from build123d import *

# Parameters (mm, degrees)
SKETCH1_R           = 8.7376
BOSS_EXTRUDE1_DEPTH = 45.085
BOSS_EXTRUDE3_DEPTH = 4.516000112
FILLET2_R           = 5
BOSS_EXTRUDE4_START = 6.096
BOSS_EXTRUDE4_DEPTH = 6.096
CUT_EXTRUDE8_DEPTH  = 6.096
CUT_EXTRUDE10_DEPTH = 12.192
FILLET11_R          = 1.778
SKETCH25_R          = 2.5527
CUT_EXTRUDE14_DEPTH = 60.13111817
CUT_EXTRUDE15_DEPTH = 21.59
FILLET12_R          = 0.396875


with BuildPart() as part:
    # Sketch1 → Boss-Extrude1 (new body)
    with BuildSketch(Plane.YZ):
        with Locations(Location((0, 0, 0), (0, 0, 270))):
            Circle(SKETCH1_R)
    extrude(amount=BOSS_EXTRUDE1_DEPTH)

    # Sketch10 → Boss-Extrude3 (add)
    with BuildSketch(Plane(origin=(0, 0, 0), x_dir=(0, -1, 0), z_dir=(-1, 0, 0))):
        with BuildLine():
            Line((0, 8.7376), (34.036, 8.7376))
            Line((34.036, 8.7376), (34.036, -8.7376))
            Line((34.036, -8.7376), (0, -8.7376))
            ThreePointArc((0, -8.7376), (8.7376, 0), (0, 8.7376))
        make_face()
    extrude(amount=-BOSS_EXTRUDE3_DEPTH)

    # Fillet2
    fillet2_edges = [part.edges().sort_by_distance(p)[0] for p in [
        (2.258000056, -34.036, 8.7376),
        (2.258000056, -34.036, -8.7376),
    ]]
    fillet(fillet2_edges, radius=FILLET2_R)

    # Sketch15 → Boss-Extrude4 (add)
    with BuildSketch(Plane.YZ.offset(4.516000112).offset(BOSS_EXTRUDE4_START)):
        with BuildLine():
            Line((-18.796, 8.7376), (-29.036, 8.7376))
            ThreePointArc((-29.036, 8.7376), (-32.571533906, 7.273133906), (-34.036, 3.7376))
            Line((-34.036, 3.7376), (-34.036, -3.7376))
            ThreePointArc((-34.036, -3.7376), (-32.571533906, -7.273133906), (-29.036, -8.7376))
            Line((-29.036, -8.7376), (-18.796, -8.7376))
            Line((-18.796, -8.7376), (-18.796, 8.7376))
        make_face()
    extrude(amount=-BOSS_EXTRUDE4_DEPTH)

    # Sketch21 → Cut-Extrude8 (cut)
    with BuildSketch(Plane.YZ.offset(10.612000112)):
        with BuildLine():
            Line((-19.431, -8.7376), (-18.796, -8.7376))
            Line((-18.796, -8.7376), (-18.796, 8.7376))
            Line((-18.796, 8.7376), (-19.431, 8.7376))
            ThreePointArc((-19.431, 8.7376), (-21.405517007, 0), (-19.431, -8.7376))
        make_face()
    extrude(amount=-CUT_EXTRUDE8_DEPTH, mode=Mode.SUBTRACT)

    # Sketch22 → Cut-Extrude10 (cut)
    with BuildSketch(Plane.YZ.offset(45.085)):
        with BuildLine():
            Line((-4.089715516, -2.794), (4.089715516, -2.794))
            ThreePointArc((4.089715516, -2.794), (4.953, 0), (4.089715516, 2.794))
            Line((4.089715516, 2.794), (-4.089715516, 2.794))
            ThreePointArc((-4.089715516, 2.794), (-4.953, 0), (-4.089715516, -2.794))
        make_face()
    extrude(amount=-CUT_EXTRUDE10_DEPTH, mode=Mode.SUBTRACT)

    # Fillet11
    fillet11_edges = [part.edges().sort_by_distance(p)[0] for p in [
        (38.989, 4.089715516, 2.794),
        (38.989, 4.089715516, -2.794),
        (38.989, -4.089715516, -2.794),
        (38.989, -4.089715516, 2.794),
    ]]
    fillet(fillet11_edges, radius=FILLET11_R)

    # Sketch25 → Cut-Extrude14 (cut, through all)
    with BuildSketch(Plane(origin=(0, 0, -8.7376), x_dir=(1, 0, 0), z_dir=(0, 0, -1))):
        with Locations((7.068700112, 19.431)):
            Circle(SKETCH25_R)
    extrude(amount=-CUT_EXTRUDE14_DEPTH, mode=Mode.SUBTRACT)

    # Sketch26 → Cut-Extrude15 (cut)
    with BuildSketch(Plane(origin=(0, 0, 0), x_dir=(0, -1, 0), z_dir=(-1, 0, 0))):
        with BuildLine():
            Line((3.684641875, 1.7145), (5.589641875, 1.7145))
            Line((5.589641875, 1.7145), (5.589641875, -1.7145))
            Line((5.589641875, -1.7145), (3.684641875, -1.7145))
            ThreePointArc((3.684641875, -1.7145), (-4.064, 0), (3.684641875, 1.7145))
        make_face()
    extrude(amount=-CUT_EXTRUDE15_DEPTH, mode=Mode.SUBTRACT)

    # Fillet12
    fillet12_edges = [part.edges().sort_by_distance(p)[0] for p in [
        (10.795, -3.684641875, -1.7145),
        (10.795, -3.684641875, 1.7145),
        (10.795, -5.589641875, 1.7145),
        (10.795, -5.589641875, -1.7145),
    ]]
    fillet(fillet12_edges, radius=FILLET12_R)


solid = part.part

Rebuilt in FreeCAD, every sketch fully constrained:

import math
import FreeCAD as App
import Part
import Sketcher
Q = App.Units.Quantity


def edges_at(feature, points):
    """Names of the edges that pass closest to the given points."""
    edges = feature.Shape.Edges
    near = lambda p: min(range(len(edges)), key=lambda i: edges[i].distToShape(Part.Vertex(*p))[0])
    return sorted({f"Edge{near(p) + 1}" for p in points})

doc = App.newDocument("Part")
body = doc.addObject("PartDesign::Body", "Body")

# Sketch on YZ plane
sketch1 = body.newObject("Sketcher::SketchObject", "Sketch")
sketch1.AttachmentSupport = (doc.getObject("YZ_Plane"), [""])
sketch1.MapMode = "FlatFace"
sketch1.addGeometry(Part.Circle(App.Vector(0, 0, 0), App.Vector(0, 0, 1), 9), False)
sketch1.addConstraint(Sketcher.Constraint("Coincident", 0, 3, -1, 1))
sketch1.addConstraint(Sketcher.Constraint("Diameter", 0, Q("0.688 in")))
pad1 = body.newObject("PartDesign::Pad", "Pad")
pad1.Profile = sketch1
pad1.Length = Q("1.775 in")

# Sketch on YZ plane
sketch2 = body.newObject("Sketcher::SketchObject", "Sketch001")
sketch2.AttachmentSupport = (doc.getObject("YZ_Plane"), [""])
sketch2.MapMode = "FlatFace"
sketch2.addGeometry(Part.LineSegment(App.Vector(-34, 9, 0), App.Vector(0, 9, 0)), False)
sketch2.addGeometry(Part.ArcOfCircle(Part.Circle(App.Vector(0, 0, 0), App.Vector(0, 0, 1), 9), math.radians(90), math.radians(270)), False)
sketch2.addGeometry(Part.LineSegment(App.Vector(0, -9, 0), App.Vector(-34, -9, 0)), False)
sketch2.addGeometry(Part.LineSegment(App.Vector(-34, -9, 0), App.Vector(-34, 9, 0)), False)
sketch2.addConstraint(Sketcher.Constraint("Tangent", 0, 2, 1, 1))
sketch2.addConstraint(Sketcher.Constraint("Tangent", 1, 2, 2, 1))
sketch2.addConstraint(Sketcher.Constraint("Coincident", 2, 2, 3, 1))
sketch2.addConstraint(Sketcher.Constraint("Coincident", 3, 2, 0, 1))
sketch2.addConstraint(Sketcher.Constraint("Horizontal", 0))
sketch2.addConstraint(Sketcher.Constraint("Horizontal", 2))
sketch2.addConstraint(Sketcher.Constraint("Vertical", 3))
sketch2.addConstraint(Sketcher.Constraint("Coincident", 1, 3, -1, 1))
sketch2.addConstraint(Sketcher.Constraint("Radius", 1, Q("0.344 in")))
sketch2.addConstraint(Sketcher.Constraint("DistanceX", 0, 1, 0, 2, Q("1.34 in")))
pad2 = body.newObject("PartDesign::Pad", "Pad001")
pad2.Profile = sketch2
pad2.Length = 4.516
doc.recompute()

fillet = body.newObject("PartDesign::Fillet", "Fillet")
fillet.Base = (pad2, edges_at(pad2, [(2.258, -34.036, 8.738), (2.258, -34.036, -8.738)]))
fillet.Radius = 5

# Sketch on YZ plane
sketch3 = body.newObject("Sketcher::SketchObject", "Sketch002")
sketch3.AttachmentSupport = (doc.getObject("YZ_Plane"), [""])
sketch3.MapMode = "FlatFace"
sketch3.AttachmentOffset = App.Placement(App.Vector(0, 0, 10.612), App.Rotation())
sketch3.addGeometry(Part.LineSegment(App.Vector(-19, 9, 0), App.Vector(-29, 9, 0)), False)
sketch3.addGeometry(Part.ArcOfCircle(Part.Circle(App.Vector(-29, 4, 0), App.Vector(0, 0, 1), 5), math.radians(90), math.radians(180)), False)
sketch3.addGeometry(Part.LineSegment(App.Vector(-34, 4, 0), App.Vector(-34, -4, 0)), False)
sketch3.addGeometry(Part.ArcOfCircle(Part.Circle(App.Vector(-29, -4, 0), App.Vector(0, 0, 1), 5), math.radians(180), math.radians(270)), False)
sketch3.addGeometry(Part.LineSegment(App.Vector(-29, -9, 0), App.Vector(-19, -9, 0)), False)
sketch3.addGeometry(Part.LineSegment(App.Vector(-19, -9, 0), App.Vector(-19, 9, 0)), False)
sketch3.addConstraint(Sketcher.Constraint("Tangent", 0, 2, 1, 1))
sketch3.addConstraint(Sketcher.Constraint("Tangent", 1, 2, 2, 1))
sketch3.addConstraint(Sketcher.Constraint("Tangent", 2, 2, 3, 1))
sketch3.addConstraint(Sketcher.Constraint("Tangent", 3, 2, 4, 1))
sketch3.addConstraint(Sketcher.Constraint("Coincident", 4, 2, 5, 1))
sketch3.addConstraint(Sketcher.Constraint("Coincident", 5, 2, 0, 1))
sketch3.addConstraint(Sketcher.Constraint("Horizontal", 0))
sketch3.addConstraint(Sketcher.Constraint("Vertical", 2))
sketch3.addConstraint(Sketcher.Constraint("Horizontal", 4))
sketch3.addConstraint(Sketcher.Constraint("Vertical", 5))
sketch3.addConstraint(Sketcher.Constraint("Equal", 1, 3))
sketch3.addConstraint(Sketcher.Constraint("DistanceX", 2, 2, 4, 2, Q("0.6 in")))
sketch3.addConstraint(Sketcher.Constraint("DistanceY", 5, 1, 5, 2, Q("0.688 in")))
sketch3.addConstraint(Sketcher.Constraint("DistanceX", 1, 2, -1, 1, Q("1.34 in")))
sketch3.addConstraint(Sketcher.Constraint("Radius", 1, 5.0))
sketch3.addConstraint(Sketcher.Constraint("DistanceY", -1, 1, 0, 2, Q("0.344 in")))
pad3 = body.newObject("PartDesign::Pad", "Pad002")
pad3.Profile = sketch3
pad3.Length = Q("0.24 in")
pad3.Reversed = True

# Sketch on YZ plane
sketch4 = body.newObject("Sketcher::SketchObject", "Sketch003")
sketch4.AttachmentSupport = (doc.getObject("YZ_Plane"), [""])
sketch4.MapMode = "FlatFace"
sketch4.AttachmentOffset = App.Placement(App.Vector(0, 0, 10.612), App.Rotation())
sketch4.addGeometry(Part.LineSegment(App.Vector(-19.4, -8.7, 0), App.Vector(-18.8, -8.7, 0)), False)
sketch4.addGeometry(Part.LineSegment(App.Vector(-18.8, -8.7, 0), App.Vector(-18.8, 8.7, 0)), False)
sketch4.addGeometry(Part.LineSegment(App.Vector(-18.8, 8.7, 0), App.Vector(-19.4, 8.7, 0)), False)
sketch4.addGeometry(Part.ArcOfCircle(Part.Circle(App.Vector(-1.1, 0, 0), App.Vector(0, 0, 1), 20.3), math.radians(155), math.radians(205)), False)
sketch4.addConstraint(Sketcher.Constraint("Coincident", 0, 2, 1, 1))
sketch4.addConstraint(Sketcher.Constraint("Coincident", 1, 2, 2, 1))
sketch4.addConstraint(Sketcher.Constraint("Coincident", 2, 2, 3, 1))
sketch4.addConstraint(Sketcher.Constraint("Coincident", 3, 2, 0, 1))
sketch4.addConstraint(Sketcher.Constraint("Horizontal", 0))
sketch4.addConstraint(Sketcher.Constraint("Vertical", 1))
sketch4.addConstraint(Sketcher.Constraint("Horizontal", 2))
sketch4.addConstraint(Sketcher.Constraint("Symmetric", 2, 2, 3, 2, -1))
sketch4.addConstraint(Sketcher.Constraint("Radius", 3, Q("0.8 in")))
sketch4.addConstraint(Sketcher.Constraint("DistanceX", 0, 1, 0, 2, Q("0.025 in")))
sketch4.addConstraint(Sketcher.Constraint("DistanceY", 1, 1, 1, 2, Q("0.688 in")))
sketch4.addConstraint(Sketcher.Constraint("DistanceX", 0, 2, -1, 1, Q("0.74 in")))
pocket1 = body.newObject("PartDesign::Pocket", "Pocket")
pocket1.Profile = sketch4
pocket1.Length = Q("0.24 in")

# Sketch on YZ plane
sketch5 = body.newObject("Sketcher::SketchObject", "Sketch004")
sketch5.AttachmentSupport = (doc.getObject("YZ_Plane"), [""])
sketch5.MapMode = "FlatFace"
sketch5.AttachmentOffset = App.Placement(App.Vector(0, 0, 1.775 * 25.4), App.Rotation())
sketch5.addGeometry(Part.LineSegment(App.Vector(-4.1, -2.8, 0), App.Vector(4.1, -2.8, 0)), False)
sketch5.addGeometry(Part.ArcOfCircle(Part.Circle(App.Vector(0, 0, 0), App.Vector(0, 0, 1), 5), math.radians(-34), math.radians(34)), False)
sketch5.addGeometry(Part.LineSegment(App.Vector(4.1, 2.8, 0), App.Vector(-4.1, 2.8, 0)), False)
sketch5.addGeometry(Part.ArcOfCircle(Part.Circle(App.Vector(0, 0, 0), App.Vector(0, 0, 1), 5), math.radians(146), math.radians(214)), False)
sketch5.addConstraint(Sketcher.Constraint("Coincident", 0, 2, 1, 1))
sketch5.addConstraint(Sketcher.Constraint("Coincident", 1, 2, 2, 1))
sketch5.addConstraint(Sketcher.Constraint("Coincident", 2, 2, 3, 1))
sketch5.addConstraint(Sketcher.Constraint("Coincident", 3, 2, 0, 1))
sketch5.addConstraint(Sketcher.Constraint("Horizontal", 0))
sketch5.addConstraint(Sketcher.Constraint("Horizontal", 2))
sketch5.addConstraint(Sketcher.Constraint("Coincident", 1, 3, -1, 1))
sketch5.addConstraint(Sketcher.Constraint("Coincident", 3, 3, -1, 1))
sketch5.addConstraint(Sketcher.Constraint("Equal", 1, 3))
sketch5.addConstraint(Sketcher.Constraint("Vertical", 0, 2, 1, 2))
sketch5.addConstraint(Sketcher.Constraint("Radius", 1, Q("0.195 in")))
sketch5.addConstraint(Sketcher.Constraint("DistanceY", 0, 2, -1, 1, Q("0.11 in")))
pocket2 = body.newObject("PartDesign::Pocket", "Pocket001")
pocket2.Profile = sketch5
pocket2.Length = Q("0.48 in")
doc.recompute()

fillet2 = body.newObject("PartDesign::Fillet", "Fillet001")
fillet2.Base = (pocket2, edges_at(pocket2, [
    (38.989, 4.09, 2.794),
    (38.989, 4.09, -2.794),
    (38.989, -4.09, -2.794),
    (38.989, -4.09, 2.794),
]))
fillet2.Radius = Q("0.07 in")

# Sketch on XY plane
sketch6 = body.newObject("Sketcher::SketchObject", "Sketch005")
sketch6.AttachmentSupport = (doc.getObject("XY_Plane"), [""])
sketch6.MapMode = "FlatFace"
sketch6.AttachmentOffset = App.Placement(App.Vector(0, 0, -0.344 * 25.4), App.Rotation())
sketch6.addGeometry(Part.Circle(App.Vector(7.1, -19.4, 0), App.Vector(0, 0, 1), 2.6), False)
sketch6.addConstraint(Sketcher.Constraint("Diameter", 0, Q("0.201 in")))
sketch6.addConstraint(Sketcher.Constraint("DistanceY", 0, 3, -1, 1, Q("0.765 in")))
sketch6.addConstraint(Sketcher.Constraint("DistanceX", -1, 1, 0, 3, 7.0687))
pocket3 = body.newObject("PartDesign::Pocket", "Pocket002")
pocket3.Profile = sketch6
pocket3.Type = "ThroughAll"
pocket3.Reversed = True

# Sketch on YZ plane
sketch7 = body.newObject("Sketcher::SketchObject", "Sketch006")
sketch7.AttachmentSupport = (doc.getObject("YZ_Plane"), [""])
sketch7.MapMode = "FlatFace"
sketch7.addGeometry(Part.LineSegment(App.Vector(-5.6, 1.7, 0), App.Vector(-3.7, 1.7, 0)), False)
sketch7.addGeometry(Part.ArcOfCircle(Part.Circle(App.Vector(0, 0, 0), App.Vector(0, 0, 1), 4.1), math.radians(-155), math.radians(155)), False)
sketch7.addGeometry(Part.LineSegment(App.Vector(-3.7, -1.7, 0), App.Vector(-5.6, -1.7, 0)), False)
sketch7.addGeometry(Part.LineSegment(App.Vector(-5.6, -1.7, 0), App.Vector(-5.6, 1.7, 0)), False)
sketch7.addConstraint(Sketcher.Constraint("Coincident", 0, 2, 1, 2))
sketch7.addConstraint(Sketcher.Constraint("Coincident", 1, 1, 2, 1))
sketch7.addConstraint(Sketcher.Constraint("Coincident", 2, 2, 3, 1))
sketch7.addConstraint(Sketcher.Constraint("Coincident", 3, 2, 0, 1))
sketch7.addConstraint(Sketcher.Constraint("Horizontal", 0))
sketch7.addConstraint(Sketcher.Constraint("Horizontal", 2))
sketch7.addConstraint(Sketcher.Constraint("Vertical", 3))
sketch7.addConstraint(Sketcher.Constraint("Coincident", 1, 3, -1, 1))
sketch7.addConstraint(Sketcher.Constraint("Vertical", 0, 2, 1, 1))
sketch7.addConstraint(Sketcher.Constraint("Radius", 1, Q("0.16 in")))
sketch7.addConstraint(Sketcher.Constraint("DistanceX", 0, 1, 0, 2, Q("0.075 in")))
sketch7.addConstraint(Sketcher.Constraint("DistanceY", 3, 1, 3, 2, Q("0.135 in")))
pocket4 = body.newObject("PartDesign::Pocket", "Pocket003")
pocket4.Profile = sketch7
pocket4.Length = Q("0.85 in")
pocket4.Reversed = True
doc.recompute()

fillet3 = body.newObject("PartDesign::Fillet", "Fillet002")
fillet3.Base = (pocket4, edges_at(pocket4, [
    (10.795, -3.685, -1.714),
    (10.795, -3.685, 1.714),
    (10.795, -5.59, 1.714),
    (10.795, -5.59, -1.714),
]))
fillet3.Radius = Q("0.015625 in")

doc.recompute()
